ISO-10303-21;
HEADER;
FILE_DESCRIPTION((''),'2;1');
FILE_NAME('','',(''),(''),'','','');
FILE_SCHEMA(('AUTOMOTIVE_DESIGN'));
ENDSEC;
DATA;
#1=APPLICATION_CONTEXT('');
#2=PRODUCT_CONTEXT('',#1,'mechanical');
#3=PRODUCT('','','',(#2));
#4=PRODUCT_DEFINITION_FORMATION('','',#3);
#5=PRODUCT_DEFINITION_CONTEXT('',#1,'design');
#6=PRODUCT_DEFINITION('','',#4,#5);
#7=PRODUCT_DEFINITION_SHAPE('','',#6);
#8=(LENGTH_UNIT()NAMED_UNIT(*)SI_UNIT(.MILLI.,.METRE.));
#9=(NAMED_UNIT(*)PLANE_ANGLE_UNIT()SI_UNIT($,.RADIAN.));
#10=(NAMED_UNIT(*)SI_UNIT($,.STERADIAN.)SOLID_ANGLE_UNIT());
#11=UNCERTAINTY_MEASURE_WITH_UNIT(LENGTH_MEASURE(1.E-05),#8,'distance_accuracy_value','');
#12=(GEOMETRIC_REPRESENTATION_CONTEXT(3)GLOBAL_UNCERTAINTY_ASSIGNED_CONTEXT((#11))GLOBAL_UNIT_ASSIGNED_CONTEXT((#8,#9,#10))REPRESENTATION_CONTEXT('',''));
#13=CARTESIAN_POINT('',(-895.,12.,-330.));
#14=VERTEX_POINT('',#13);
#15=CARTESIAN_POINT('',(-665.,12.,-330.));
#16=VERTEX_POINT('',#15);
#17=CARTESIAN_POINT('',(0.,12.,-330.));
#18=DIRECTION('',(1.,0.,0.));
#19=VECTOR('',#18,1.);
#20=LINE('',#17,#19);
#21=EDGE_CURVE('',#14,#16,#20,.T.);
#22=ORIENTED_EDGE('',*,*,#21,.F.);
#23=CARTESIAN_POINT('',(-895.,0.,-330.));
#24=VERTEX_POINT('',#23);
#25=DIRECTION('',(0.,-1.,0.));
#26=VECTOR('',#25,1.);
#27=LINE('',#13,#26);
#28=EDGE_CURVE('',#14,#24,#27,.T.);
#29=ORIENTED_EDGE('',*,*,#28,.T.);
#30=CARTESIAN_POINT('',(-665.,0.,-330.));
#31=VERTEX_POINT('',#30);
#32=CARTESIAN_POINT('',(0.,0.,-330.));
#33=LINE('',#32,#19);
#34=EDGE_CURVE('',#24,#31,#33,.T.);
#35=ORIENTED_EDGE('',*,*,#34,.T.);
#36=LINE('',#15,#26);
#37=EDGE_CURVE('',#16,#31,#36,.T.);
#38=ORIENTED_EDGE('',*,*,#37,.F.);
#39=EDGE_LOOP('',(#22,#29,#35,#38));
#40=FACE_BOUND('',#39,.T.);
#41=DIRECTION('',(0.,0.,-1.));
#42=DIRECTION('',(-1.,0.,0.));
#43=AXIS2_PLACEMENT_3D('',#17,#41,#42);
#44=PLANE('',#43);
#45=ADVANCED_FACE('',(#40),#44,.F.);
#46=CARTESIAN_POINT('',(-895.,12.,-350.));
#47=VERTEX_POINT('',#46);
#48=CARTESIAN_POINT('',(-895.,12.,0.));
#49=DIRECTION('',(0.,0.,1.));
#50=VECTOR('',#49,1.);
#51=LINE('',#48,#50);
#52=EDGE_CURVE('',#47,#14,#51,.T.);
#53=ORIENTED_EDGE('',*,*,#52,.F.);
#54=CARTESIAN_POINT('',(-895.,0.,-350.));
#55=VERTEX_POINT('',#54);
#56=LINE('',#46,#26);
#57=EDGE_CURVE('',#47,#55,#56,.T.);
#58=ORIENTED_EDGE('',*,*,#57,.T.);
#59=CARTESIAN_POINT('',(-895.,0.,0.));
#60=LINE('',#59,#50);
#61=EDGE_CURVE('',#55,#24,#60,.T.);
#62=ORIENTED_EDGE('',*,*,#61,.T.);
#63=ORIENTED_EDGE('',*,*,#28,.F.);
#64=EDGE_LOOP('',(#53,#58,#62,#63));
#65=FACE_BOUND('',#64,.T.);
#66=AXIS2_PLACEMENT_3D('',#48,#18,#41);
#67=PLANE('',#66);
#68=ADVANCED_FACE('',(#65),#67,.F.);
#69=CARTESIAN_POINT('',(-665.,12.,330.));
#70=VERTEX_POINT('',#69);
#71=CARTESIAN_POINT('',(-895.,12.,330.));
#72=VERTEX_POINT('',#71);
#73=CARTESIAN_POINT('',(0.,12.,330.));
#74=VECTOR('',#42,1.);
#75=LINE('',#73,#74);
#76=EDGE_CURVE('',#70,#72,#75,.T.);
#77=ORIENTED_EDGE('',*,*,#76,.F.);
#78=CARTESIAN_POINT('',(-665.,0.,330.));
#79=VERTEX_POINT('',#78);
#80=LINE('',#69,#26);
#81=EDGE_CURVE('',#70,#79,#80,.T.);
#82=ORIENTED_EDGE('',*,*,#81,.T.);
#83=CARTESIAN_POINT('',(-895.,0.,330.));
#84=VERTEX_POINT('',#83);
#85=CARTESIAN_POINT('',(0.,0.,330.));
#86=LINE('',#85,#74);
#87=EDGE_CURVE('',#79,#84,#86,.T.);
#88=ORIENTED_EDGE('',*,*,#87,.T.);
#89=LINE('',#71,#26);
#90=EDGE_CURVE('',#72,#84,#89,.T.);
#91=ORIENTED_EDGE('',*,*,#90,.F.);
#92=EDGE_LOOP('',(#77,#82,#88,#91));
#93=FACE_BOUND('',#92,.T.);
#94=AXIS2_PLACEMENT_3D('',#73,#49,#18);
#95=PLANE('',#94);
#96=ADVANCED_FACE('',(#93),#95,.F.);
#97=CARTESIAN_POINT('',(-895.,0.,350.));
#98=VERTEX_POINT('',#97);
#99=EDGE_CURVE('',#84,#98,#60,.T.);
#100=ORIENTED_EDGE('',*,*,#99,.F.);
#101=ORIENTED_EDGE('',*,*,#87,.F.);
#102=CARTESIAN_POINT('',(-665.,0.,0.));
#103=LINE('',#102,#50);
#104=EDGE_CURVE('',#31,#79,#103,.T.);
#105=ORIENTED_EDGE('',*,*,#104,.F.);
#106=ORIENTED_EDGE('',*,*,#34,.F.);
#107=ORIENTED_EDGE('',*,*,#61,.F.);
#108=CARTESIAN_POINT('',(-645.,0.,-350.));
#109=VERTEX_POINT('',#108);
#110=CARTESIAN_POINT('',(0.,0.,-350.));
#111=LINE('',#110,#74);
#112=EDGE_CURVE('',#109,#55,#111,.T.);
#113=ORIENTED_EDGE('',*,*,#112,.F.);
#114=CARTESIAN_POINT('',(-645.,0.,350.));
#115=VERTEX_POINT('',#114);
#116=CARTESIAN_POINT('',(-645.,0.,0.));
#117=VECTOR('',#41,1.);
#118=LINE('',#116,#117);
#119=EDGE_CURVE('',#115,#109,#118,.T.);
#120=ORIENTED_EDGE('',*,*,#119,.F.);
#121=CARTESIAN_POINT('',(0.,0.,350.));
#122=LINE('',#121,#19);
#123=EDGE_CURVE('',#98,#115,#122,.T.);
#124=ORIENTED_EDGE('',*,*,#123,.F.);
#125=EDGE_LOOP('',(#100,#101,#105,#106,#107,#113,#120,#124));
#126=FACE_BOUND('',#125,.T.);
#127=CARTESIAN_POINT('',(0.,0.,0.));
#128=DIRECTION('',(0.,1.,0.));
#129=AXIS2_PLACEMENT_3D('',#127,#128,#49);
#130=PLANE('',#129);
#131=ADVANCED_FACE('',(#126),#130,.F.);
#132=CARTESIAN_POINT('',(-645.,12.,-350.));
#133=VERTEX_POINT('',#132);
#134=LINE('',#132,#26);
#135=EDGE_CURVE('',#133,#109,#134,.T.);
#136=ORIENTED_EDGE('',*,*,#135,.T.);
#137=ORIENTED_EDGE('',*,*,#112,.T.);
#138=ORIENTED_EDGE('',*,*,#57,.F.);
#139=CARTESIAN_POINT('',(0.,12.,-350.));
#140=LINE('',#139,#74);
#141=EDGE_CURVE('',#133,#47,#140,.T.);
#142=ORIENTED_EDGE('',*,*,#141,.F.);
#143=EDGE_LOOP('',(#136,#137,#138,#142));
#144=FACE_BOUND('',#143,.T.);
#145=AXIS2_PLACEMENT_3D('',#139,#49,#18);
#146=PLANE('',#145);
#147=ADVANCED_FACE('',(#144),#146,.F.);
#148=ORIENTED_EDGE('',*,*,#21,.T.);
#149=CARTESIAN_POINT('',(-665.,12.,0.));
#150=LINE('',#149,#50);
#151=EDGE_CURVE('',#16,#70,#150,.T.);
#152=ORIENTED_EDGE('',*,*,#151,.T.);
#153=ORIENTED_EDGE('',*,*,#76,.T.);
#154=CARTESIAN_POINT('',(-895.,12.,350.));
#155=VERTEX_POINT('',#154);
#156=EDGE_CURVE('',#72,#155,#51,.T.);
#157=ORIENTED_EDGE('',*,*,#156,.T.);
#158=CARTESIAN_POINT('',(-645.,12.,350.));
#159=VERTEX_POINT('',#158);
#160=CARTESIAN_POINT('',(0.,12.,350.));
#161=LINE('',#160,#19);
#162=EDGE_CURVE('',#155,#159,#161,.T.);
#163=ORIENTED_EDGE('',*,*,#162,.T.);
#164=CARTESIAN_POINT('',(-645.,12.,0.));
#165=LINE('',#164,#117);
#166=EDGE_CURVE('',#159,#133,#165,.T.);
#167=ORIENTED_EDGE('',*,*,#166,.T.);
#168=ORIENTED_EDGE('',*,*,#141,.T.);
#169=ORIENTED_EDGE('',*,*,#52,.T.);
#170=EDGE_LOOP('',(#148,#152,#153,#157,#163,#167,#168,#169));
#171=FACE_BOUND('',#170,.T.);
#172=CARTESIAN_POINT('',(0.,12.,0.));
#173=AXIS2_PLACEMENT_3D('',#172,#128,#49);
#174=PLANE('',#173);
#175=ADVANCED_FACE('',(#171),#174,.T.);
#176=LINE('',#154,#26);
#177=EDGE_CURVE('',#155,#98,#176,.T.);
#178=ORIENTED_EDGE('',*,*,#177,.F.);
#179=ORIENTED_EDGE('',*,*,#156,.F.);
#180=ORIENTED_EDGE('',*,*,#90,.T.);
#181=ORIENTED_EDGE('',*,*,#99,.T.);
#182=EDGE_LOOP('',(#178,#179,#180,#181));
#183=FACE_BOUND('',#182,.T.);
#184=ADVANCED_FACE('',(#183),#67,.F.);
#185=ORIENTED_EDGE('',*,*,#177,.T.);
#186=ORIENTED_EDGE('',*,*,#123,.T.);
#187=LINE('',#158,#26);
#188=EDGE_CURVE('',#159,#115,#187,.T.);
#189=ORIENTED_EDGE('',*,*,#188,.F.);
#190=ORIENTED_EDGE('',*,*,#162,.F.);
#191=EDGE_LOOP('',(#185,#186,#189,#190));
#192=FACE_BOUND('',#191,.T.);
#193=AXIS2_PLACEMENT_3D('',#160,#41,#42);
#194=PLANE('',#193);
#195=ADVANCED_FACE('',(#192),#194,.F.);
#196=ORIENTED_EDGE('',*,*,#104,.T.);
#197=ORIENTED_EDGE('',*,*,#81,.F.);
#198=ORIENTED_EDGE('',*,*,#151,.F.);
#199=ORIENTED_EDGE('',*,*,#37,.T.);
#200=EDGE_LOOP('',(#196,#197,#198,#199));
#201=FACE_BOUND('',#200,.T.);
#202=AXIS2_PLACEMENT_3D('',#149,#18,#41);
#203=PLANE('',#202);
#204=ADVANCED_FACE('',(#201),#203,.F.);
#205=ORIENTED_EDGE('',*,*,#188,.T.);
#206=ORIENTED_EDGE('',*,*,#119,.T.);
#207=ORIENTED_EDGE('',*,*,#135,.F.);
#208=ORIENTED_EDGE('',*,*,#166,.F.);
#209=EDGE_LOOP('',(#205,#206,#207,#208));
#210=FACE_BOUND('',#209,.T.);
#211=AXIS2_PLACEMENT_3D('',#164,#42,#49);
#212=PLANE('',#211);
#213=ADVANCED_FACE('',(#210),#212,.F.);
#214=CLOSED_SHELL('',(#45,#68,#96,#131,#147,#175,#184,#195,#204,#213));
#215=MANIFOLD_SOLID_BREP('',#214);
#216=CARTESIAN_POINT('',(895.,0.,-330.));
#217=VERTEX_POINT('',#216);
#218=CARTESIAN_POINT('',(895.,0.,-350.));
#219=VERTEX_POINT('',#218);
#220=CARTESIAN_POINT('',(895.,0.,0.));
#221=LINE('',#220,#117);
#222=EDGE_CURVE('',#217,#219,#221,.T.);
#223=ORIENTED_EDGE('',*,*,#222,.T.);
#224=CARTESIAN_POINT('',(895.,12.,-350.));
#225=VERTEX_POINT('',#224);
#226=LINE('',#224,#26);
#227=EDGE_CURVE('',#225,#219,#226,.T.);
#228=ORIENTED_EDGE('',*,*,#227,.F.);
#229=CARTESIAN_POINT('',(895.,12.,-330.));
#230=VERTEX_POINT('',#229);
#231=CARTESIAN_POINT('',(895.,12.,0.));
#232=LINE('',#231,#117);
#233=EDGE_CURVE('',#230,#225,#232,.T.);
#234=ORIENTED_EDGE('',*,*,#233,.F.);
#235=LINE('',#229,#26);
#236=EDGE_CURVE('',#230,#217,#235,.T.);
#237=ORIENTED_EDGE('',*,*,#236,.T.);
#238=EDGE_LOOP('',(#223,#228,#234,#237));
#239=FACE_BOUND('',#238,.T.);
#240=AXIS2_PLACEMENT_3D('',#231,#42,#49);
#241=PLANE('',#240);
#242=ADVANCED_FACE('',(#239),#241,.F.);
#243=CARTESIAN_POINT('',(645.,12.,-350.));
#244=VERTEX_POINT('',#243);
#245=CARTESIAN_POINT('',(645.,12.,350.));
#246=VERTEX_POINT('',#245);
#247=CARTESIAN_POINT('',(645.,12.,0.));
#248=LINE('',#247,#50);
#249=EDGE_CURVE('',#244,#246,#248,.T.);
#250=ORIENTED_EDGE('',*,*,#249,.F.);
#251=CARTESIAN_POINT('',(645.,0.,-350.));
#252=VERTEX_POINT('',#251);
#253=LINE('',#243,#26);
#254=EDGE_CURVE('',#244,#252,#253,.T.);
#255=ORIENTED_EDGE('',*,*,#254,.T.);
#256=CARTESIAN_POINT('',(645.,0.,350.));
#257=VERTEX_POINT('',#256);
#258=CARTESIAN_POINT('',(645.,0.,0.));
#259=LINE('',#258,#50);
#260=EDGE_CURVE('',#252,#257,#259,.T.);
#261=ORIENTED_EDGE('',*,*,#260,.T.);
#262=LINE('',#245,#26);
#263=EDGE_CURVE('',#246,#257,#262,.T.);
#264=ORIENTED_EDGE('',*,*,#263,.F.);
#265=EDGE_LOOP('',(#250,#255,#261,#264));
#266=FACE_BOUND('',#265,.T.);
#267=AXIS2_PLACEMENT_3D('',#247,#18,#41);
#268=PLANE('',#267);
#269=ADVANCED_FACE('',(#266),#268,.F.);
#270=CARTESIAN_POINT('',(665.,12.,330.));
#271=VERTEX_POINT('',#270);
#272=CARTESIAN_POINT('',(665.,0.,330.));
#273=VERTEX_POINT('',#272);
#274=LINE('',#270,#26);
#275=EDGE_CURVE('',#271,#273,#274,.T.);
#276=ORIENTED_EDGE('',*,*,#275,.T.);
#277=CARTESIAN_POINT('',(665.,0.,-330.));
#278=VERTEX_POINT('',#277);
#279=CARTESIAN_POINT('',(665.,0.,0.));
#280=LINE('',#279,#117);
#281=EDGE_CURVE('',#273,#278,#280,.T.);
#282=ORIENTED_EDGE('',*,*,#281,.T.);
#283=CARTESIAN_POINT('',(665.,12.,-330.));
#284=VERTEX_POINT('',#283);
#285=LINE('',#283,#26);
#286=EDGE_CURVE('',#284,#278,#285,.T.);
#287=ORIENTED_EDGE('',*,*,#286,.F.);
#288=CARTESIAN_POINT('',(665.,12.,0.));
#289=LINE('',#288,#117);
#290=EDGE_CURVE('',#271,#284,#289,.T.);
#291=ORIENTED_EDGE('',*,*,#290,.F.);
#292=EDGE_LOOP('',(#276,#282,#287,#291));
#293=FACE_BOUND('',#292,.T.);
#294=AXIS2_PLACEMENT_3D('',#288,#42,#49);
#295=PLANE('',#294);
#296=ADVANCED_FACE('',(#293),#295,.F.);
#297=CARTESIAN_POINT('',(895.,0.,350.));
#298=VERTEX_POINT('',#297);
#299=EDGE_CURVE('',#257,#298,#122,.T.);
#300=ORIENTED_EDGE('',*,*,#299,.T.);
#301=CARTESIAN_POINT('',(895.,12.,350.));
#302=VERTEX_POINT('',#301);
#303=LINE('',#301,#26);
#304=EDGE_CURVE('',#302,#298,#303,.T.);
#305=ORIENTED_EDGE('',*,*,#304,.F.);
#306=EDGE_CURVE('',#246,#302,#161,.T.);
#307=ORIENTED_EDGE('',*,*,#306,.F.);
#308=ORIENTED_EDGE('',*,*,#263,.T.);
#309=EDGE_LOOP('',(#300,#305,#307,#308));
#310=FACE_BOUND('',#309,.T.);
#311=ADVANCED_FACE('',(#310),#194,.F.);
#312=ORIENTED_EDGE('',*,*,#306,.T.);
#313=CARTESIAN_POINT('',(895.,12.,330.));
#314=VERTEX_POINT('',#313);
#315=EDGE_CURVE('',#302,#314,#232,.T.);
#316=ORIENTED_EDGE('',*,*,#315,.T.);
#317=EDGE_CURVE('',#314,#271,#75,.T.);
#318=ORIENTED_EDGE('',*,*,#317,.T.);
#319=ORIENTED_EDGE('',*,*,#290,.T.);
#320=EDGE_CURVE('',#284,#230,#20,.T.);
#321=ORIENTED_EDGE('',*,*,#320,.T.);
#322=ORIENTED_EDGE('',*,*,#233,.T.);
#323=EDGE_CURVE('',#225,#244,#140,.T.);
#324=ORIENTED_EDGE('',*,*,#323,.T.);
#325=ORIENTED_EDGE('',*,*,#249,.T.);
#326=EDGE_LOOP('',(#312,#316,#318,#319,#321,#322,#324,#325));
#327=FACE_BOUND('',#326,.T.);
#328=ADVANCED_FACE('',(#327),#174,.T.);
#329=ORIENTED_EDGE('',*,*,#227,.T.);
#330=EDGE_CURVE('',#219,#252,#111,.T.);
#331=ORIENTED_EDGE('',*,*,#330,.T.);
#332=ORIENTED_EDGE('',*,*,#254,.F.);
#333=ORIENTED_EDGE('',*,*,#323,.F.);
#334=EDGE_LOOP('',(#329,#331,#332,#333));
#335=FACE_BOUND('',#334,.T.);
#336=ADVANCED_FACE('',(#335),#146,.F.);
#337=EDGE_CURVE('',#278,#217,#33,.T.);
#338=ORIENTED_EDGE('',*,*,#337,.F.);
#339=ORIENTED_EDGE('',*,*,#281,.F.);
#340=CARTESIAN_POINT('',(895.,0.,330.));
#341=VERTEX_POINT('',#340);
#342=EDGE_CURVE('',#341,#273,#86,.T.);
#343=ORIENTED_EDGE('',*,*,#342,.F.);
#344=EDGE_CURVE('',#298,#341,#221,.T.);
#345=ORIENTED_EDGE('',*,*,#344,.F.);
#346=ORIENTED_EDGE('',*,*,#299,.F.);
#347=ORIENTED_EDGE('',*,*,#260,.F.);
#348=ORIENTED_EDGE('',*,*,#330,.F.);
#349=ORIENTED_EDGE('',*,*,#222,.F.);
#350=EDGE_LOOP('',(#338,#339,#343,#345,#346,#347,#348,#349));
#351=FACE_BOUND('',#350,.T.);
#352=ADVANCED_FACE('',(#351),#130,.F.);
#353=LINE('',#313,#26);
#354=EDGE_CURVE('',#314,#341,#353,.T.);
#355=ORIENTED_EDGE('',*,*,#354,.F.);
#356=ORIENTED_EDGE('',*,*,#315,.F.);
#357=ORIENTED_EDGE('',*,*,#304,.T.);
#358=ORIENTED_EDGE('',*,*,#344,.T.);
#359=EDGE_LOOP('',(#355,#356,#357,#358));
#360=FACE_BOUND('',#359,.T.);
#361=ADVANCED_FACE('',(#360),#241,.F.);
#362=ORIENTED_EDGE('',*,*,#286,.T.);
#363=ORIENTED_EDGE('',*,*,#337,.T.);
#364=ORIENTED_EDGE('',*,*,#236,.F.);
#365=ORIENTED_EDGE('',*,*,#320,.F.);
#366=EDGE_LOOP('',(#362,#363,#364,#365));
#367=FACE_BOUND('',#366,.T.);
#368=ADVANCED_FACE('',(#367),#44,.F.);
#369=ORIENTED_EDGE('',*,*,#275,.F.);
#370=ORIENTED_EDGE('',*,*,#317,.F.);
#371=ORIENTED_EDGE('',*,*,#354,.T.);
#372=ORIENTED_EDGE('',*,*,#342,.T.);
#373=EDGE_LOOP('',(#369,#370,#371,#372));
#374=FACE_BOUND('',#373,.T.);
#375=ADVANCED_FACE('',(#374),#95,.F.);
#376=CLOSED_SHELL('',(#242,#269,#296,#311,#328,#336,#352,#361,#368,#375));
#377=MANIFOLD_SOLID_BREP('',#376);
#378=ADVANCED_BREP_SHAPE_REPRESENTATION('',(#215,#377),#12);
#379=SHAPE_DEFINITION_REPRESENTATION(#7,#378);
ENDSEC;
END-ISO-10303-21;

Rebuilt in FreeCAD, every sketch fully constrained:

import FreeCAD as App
import Part
import Sketcher

doc = App.newDocument("Part")
body = doc.addObject("PartDesign::Body", "Body")

# Sketch on XZ plane
sketch1 = body.newObject("Sketcher::SketchObject", "Sketch")
sketch1.AttachmentSupport = (doc.getObject("XZ_Plane"), [""])
sketch1.MapMode = "FlatFace"
sketch1.addGeometry([
    Part.LineSegment(App.Vector(895, -330, 0), App.Vector(895, -350, 0)),  # 0
    Part.LineSegment(App.Vector(895, -350, 0), App.Vector(645, -350, 0)),  # 1
    Part.LineSegment(App.Vector(645, -350, 0), App.Vector(645, 350, 0)),  # 2
    Part.LineSegment(App.Vector(645, 350, 0), App.Vector(895, 350, 0)),  # 3
    Part.LineSegment(App.Vector(895, 350, 0), App.Vector(895, 330, 0)),  # 4
    Part.LineSegment(App.Vector(895, 330, 0), App.Vector(665, 330, 0)),  # 5
    Part.LineSegment(App.Vector(665, 330, 0), App.Vector(665, -330, 0)),  # 6
    Part.LineSegment(App.Vector(665, -330, 0), App.Vector(895, -330, 0)),  # 7
], False)
sketch1.addConstraint([
    Sketcher.Constraint("Coincident", 0, 2, 1, 1),
    Sketcher.Constraint("Coincident", 1, 2, 2, 1),
    Sketcher.Constraint("Coincident", 2, 2, 3, 1),
    Sketcher.Constraint("Coincident", 3, 2, 4, 1),
    Sketcher.Constraint("Coincident", 4, 2, 5, 1),
    Sketcher.Constraint("Coincident", 5, 2, 6, 1),
    Sketcher.Constraint("Coincident", 6, 2, 7, 1),
    Sketcher.Constraint("Coincident", 7, 2, 0, 1),
    Sketcher.Constraint("Vertical", 0),
    Sketcher.Constraint("Horizontal", 1),
    Sketcher.Constraint("Vertical", 2),
    Sketcher.Constraint("Horizontal", 3),
    Sketcher.Constraint("Vertical", 4),
    Sketcher.Constraint("Horizontal", 5),
    Sketcher.Constraint("Vertical", 6),
    Sketcher.Constraint("Horizontal", 7),
    Sketcher.Constraint("Symmetric", 0, 2, 3, 2, -1),
    Sketcher.Constraint("Equal", 0, 4),
    Sketcher.Constraint("DistanceX", 1, 2, 1, 1, 250.0),
    Sketcher.Constraint("DistanceX", 5, 2, 5, 1, 230.0),
    Sketcher.Constraint("DistanceY", 0, 2, 0, 1, 20.0),
    Sketcher.Constraint("DistanceY", 2, 1, 2, 2, 700.0),
    Sketcher.Constraint("DistanceX", -1, 1, 0, 2, 895.0),
])
pad1 = body.newObject("PartDesign::Pad", "Pad")
pad1.Profile = sketch1
pad1.Length = 12
pad1.Reversed = True
body2 = doc.addObject("PartDesign::Body", "Body001")

# Sketch on XZ plane
sketch2 = body2.newObject("Sketcher::SketchObject", "Sketch001")
sketch2.AttachmentSupport = (doc.getObject("XZ_Plane001"), [""])
sketch2.MapMode = "FlatFace"
sketch2.addGeometry([
    Part.LineSegment(App.Vector(-645, 350, 0), App.Vector(-645, -350, 0)),  # 0
    Part.LineSegment(App.Vector(-645, -350, 0), App.Vector(-895, -350, 0)),  # 1
    Part.LineSegment(App.Vector(-895, -350, 0), App.Vector(-895, -330, 0)),  # 2
    Part.LineSegment(App.Vector(-895, -330, 0), App.Vector(-665, -330, 0)),  # 3
    Part.LineSegment(App.Vector(-665, -330, 0), App.Vector(-665, 330, 0)),  # 4
    Part.LineSegment(App.Vector(-665, 330, 0), App.Vector(-895, 330, 0)),  # 5
    Part.LineSegment(App.Vector(-895, 330, 0), App.Vector(-895, 350, 0)),  # 6
    Part.LineSegment(App.Vector(-895, 350, 0), App.Vector(-645, 350, 0)),  # 7
], False)
sketch2.addConstraint([
    Sketcher.Constraint("Coincident", 0, 2, 1, 1),
    Sketcher.Constraint("Coincident", 1, 2, 2, 1),
    Sketcher.Constraint("Coincident", 2, 2, 3, 1),
    Sketcher.Constraint("Coincident", 3, 2, 4, 1),
    Sketcher.Constraint("Coincident", 4, 2, 5, 1),
    Sketcher.Constraint("Coincident", 5, 2, 6, 1),
    Sketcher.Constraint("Coincident", 6, 2, 7, 1),
    Sketcher.Constraint("Coincident", 7, 2, 0, 1),
    Sketcher.Constraint("Vertical", 0),
    Sketcher.Constraint("Horizontal", 1),
    Sketcher.Constraint("Vertical", 2),
    Sketcher.Constraint("Horizontal", 3),
    Sketcher.Constraint("Vertical", 4),
    Sketcher.Constraint("Horizontal", 5),
    Sketcher.Constraint("Vertical", 6),
    Sketcher.Constraint("Horizontal", 7),
    Sketcher.Constraint("Symmetric", 2, 2, 5, 2, -1),
    Sketcher.Constraint("Equal", 2, 6),
    Sketcher.Constraint("DistanceX", 1, 2, 1, 1, 250.0),
    Sketcher.Constraint("DistanceX", 3, 1, 3, 2, 230.0),
    Sketcher.Constraint("DistanceY", 0, 2, 0, 1, 700.0),
    Sketcher.Constraint("DistanceY", 2, 1, 2, 2, 20.0),
    Sketcher.Constraint("DistanceX", 0, 2, -1, 1, 645.0),
])
pad2 = body2.newObject("PartDesign::Pad", "Pad001")
pad2.Profile = sketch2
pad2.Length = 12
pad2.Reversed = True

doc.recompute()
